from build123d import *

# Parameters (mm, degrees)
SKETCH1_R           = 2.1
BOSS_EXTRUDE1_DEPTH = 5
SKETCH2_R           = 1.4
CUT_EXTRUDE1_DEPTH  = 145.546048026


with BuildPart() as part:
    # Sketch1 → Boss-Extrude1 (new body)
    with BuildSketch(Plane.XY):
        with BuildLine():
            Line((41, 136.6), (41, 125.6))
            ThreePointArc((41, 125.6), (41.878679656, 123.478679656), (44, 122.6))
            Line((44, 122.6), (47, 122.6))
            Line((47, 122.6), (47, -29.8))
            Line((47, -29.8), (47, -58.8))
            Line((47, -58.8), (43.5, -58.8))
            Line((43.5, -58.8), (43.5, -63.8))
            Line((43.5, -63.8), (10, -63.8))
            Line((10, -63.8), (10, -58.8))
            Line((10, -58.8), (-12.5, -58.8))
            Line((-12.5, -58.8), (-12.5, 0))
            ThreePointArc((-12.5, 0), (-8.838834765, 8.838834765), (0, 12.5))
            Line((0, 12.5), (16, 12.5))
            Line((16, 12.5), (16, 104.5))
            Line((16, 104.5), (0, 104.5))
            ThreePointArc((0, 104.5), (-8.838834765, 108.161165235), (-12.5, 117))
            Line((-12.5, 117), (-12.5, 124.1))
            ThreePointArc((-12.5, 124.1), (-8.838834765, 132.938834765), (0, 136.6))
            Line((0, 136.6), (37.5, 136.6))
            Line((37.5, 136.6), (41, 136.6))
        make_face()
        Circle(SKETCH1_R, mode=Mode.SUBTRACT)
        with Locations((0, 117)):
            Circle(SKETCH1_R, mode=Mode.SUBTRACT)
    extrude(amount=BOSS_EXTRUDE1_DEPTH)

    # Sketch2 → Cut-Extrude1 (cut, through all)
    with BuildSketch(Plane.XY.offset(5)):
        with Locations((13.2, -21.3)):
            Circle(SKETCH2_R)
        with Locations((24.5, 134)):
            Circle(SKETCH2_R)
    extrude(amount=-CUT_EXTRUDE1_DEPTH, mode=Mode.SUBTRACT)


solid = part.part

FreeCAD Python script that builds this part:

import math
import FreeCAD as App
import Part
import Sketcher
from FreeCAD import Vector
Q = App.Units.Quantity

doc = App.newDocument("Part")
body = doc.addObject("PartDesign::Body", "Body")

sketch1 = doc.addObject("Sketcher::SketchObject", "Sketch")
body.addObject(sketch1)
sketch1.AttachmentSupport = (doc.XY_Plane, [""])
sketch1.MapMode = "FlatFace"
sketch1.addGeometry([
    Part.LineSegment(Vector(41, 125.6, 0), Vector(41, 136.6, 0)),
    Part.LineSegment(Vector(41, 136.6, 0), Vector(0, 136.6, 0)),
    Part.ArcOfCircle(Part.Circle(Vector(0, 124.1, 0), Vector(0, 0, 1), 12.5), math.radians(90), math.radians(180)),
    Part.LineSegment(Vector(-12.5, 124.1, 0), Vector(-12.5, 117, 0)),
    Part.ArcOfCircle(Part.Circle(Vector(0, 117, 0), Vector(0, 0, 1), 12.5), math.radians(180), math.radians(270)),
    Part.LineSegment(Vector(0, 104.5, 0), Vector(16, 104.5, 0)),
    Part.LineSegment(Vector(16, 104.5, 0), Vector(16, 12.5, 0)),
    Part.LineSegment(Vector(16, 12.5, 0), Vector(0, 12.5, 0)),
    Part.ArcOfCircle(Part.Circle(Vector(0, 0, 0), Vector(0, 0, 1), 12.5), math.radians(90), math.radians(180)),
    Part.LineSegment(Vector(-12.5, 0, 0), Vector(-12.5, -58.8, 0)),
    Part.LineSegment(Vector(-12.5, -58.8, 0), Vector(10, -58.8, 0)),
    Part.LineSegment(Vector(10, -58.8, 0), Vector(10, -63.8, 0)),
    Part.LineSegment(Vector(10, -63.8, 0), Vector(43.5, -63.8, 0)),
    Part.LineSegment(Vector(43.5, -63.8, 0), Vector(43.5, -58.8, 0)),
    Part.LineSegment(Vector(43.5, -58.8, 0), Vector(47, -58.8, 0)),
    Part.LineSegment(Vector(47, -58.8, 0), Vector(47, 122.6, 0)),
    Part.LineSegment(Vector(47, 122.6, 0), Vector(44, 122.6, 0)),
    Part.ArcOfCircle(Part.Circle(Vector(44, 125.6, 0), Vector(0, 0, 1), 3), math.radians(180), math.radians(270)),
    Part.Circle(Vector(0, 0, 0), Vector(0, 0, 1), 2.1),
    Part.Circle(Vector(0, 117, 0), Vector(0, 0, 1), 2.1),
], False)
sketch1.addConstraint([
    Sketcher.Constraint("Coincident", 0, 2, 1, 1),
    Sketcher.Constraint("Tangent", 1, 2, 2, 1),
    Sketcher.Constraint("Tangent", 2, 2, 3, 1),
    Sketcher.Constraint("Tangent", 3, 2, 4, 1),
    Sketcher.Constraint("Tangent", 4, 2, 5, 1),
    Sketcher.Constraint("Coincident", 5, 2, 6, 1),
    Sketcher.Constraint("Coincident", 6, 2, 7, 1),
    Sketcher.Constraint("Tangent", 7, 2, 8, 1),
    Sketcher.Constraint("Tangent", 8, 2, 9, 1),
    Sketcher.Constraint("Coincident", 9, 2, 10, 1),
    Sketcher.Constraint("Coincident", 10, 2, 11, 1),
    Sketcher.Constraint("Coincident", 11, 2, 12, 1),
    Sketcher.Constraint("Coincident", 12, 2, 13, 1),
    Sketcher.Constraint("Coincident", 13, 2, 14, 1),
    Sketcher.Constraint("Coincident", 14, 2, 15, 1),
    Sketcher.Constraint("Coincident", 15, 2, 16, 1),
    Sketcher.Constraint("Tangent", 16, 2, 17, 2),
    Sketcher.Constraint("Tangent", 17, 1, 0, 1),
    Sketcher.Constraint("Vertical", 0),
    Sketcher.Constraint("Horizontal", 1),
    Sketcher.Constraint("Vertical", 3),
    Sketcher.Constraint("Horizontal", 5),
    Sketcher.Constraint("Vertical", 6),
    Sketcher.Constraint("Horizontal", 7),
    Sketcher.Constraint("Vertical", 9),
    Sketcher.Constraint("Horizontal", 10),
    Sketcher.Constraint("Vertical", 11),
    Sketcher.Constraint("Horizontal", 12),
    Sketcher.Constraint("Vertical", 13),
    Sketcher.Constraint("Horizontal", 14),
    Sketcher.Constraint("Vertical", 15),
    Sketcher.Constraint("Horizontal", 16),
    Sketcher.Constraint("Coincident", 8, 3, -1, 1),
    Sketcher.Constraint("Coincident", 18, 3, -1, 1),
    Sketcher.Constraint("Coincident", 19, 3, 4, 3),
    Sketcher.Constraint("Equal", 2, 4),
    Sketcher.Constraint("Equal", 4, 8),
    Sketcher.Constraint("Equal", 18, 19),
    Sketcher.Constraint("PointOnObject", 2, 3, -2),
    Sketcher.Constraint("Horizontal", 10, 2, 13, 2),
    Sketcher.Constraint("Radius", 17, Q("3 mm")),
    Sketcher.Constraint("Diameter", 18, Q("4.2 mm")),
    Sketcher.Constraint("Radius", 2, Q("12.5 mm")),
    Sketcher.Constraint("DistanceX", 1, 2, 1, 1, Q("41 mm")),
    Sketcher.Constraint("DistanceX", 5, 1, 5, 2, Q("16 mm")),
    Sketcher.Constraint("DistanceX", 16, 2, 16, 1, Q("3 mm")),
    Sketcher.Constraint("DistanceY", 0, 1, 0, 2, Q("11 mm")),
    Sketcher.Constraint("DistanceY", 6, 2, 6, 1, Q("92 mm")),
    Sketcher.Constraint("DistanceY", 11, 2, 11, 1, Q("5 mm")),
    Sketcher.Constraint("DistanceX", 10, 1, 10, 2, Q("22.5 mm")),
    Sketcher.Constraint("DistanceX", 12, 1, 12, 2, Q("33.5 mm")),
    Sketcher.Constraint("DistanceY", 3, 2, 3, 1, Q("7.1 mm")),
    Sketcher.Constraint("DistanceY", 9, 2, 9, 1, Q("58.8 mm")),
])
pad1 = doc.addObject("PartDesign::Pad", "Pad")
body.addObject(pad1)
pad1.Profile = sketch1
pad1.Length = 5

sketch2 = doc.addObject("Sketcher::SketchObject", "Sketch001")
body.addObject(sketch2)
sketch2.AttachmentSupport = (doc.XY_Plane, [""])
sketch2.MapMode = "FlatFace"
sketch2.AttachmentOffset = App.Placement(Vector(0, 0, 5), App.Rotation())
sketch2.addGeometry([
    Part.Circle(Vector(13.2, -21.3, 0), Vector(0, 0, 1), 1.4),
    Part.Circle(Vector(24.5, 134, 0), Vector(0, 0, 1), 1.4),
], False)
sketch2.addConstraint([
    Sketcher.Constraint("Equal", 0, 1),
    Sketcher.Constraint("Diameter", 0, Q("2.8 mm")),
    Sketcher.Constraint("DistanceY", -1, 1, 1, 3, Q("134 mm")),
    Sketcher.Constraint("DistanceX", -1, 1, 0, 3, Q("13.2 mm")),
    Sketcher.Constraint("DistanceY", 0, 3, -1, 1, Q("21.3 mm")),
    Sketcher.Constraint("DistanceX", -1, 1, 1, 3, Q("24.5 mm")),
])
pocket1 = doc.addObject("PartDesign::Pocket", "Pocket")
body.addObject(pocket1)
pocket1.Profile = sketch2
pocket1.Type = "ThroughAll"

doc.recompute()
